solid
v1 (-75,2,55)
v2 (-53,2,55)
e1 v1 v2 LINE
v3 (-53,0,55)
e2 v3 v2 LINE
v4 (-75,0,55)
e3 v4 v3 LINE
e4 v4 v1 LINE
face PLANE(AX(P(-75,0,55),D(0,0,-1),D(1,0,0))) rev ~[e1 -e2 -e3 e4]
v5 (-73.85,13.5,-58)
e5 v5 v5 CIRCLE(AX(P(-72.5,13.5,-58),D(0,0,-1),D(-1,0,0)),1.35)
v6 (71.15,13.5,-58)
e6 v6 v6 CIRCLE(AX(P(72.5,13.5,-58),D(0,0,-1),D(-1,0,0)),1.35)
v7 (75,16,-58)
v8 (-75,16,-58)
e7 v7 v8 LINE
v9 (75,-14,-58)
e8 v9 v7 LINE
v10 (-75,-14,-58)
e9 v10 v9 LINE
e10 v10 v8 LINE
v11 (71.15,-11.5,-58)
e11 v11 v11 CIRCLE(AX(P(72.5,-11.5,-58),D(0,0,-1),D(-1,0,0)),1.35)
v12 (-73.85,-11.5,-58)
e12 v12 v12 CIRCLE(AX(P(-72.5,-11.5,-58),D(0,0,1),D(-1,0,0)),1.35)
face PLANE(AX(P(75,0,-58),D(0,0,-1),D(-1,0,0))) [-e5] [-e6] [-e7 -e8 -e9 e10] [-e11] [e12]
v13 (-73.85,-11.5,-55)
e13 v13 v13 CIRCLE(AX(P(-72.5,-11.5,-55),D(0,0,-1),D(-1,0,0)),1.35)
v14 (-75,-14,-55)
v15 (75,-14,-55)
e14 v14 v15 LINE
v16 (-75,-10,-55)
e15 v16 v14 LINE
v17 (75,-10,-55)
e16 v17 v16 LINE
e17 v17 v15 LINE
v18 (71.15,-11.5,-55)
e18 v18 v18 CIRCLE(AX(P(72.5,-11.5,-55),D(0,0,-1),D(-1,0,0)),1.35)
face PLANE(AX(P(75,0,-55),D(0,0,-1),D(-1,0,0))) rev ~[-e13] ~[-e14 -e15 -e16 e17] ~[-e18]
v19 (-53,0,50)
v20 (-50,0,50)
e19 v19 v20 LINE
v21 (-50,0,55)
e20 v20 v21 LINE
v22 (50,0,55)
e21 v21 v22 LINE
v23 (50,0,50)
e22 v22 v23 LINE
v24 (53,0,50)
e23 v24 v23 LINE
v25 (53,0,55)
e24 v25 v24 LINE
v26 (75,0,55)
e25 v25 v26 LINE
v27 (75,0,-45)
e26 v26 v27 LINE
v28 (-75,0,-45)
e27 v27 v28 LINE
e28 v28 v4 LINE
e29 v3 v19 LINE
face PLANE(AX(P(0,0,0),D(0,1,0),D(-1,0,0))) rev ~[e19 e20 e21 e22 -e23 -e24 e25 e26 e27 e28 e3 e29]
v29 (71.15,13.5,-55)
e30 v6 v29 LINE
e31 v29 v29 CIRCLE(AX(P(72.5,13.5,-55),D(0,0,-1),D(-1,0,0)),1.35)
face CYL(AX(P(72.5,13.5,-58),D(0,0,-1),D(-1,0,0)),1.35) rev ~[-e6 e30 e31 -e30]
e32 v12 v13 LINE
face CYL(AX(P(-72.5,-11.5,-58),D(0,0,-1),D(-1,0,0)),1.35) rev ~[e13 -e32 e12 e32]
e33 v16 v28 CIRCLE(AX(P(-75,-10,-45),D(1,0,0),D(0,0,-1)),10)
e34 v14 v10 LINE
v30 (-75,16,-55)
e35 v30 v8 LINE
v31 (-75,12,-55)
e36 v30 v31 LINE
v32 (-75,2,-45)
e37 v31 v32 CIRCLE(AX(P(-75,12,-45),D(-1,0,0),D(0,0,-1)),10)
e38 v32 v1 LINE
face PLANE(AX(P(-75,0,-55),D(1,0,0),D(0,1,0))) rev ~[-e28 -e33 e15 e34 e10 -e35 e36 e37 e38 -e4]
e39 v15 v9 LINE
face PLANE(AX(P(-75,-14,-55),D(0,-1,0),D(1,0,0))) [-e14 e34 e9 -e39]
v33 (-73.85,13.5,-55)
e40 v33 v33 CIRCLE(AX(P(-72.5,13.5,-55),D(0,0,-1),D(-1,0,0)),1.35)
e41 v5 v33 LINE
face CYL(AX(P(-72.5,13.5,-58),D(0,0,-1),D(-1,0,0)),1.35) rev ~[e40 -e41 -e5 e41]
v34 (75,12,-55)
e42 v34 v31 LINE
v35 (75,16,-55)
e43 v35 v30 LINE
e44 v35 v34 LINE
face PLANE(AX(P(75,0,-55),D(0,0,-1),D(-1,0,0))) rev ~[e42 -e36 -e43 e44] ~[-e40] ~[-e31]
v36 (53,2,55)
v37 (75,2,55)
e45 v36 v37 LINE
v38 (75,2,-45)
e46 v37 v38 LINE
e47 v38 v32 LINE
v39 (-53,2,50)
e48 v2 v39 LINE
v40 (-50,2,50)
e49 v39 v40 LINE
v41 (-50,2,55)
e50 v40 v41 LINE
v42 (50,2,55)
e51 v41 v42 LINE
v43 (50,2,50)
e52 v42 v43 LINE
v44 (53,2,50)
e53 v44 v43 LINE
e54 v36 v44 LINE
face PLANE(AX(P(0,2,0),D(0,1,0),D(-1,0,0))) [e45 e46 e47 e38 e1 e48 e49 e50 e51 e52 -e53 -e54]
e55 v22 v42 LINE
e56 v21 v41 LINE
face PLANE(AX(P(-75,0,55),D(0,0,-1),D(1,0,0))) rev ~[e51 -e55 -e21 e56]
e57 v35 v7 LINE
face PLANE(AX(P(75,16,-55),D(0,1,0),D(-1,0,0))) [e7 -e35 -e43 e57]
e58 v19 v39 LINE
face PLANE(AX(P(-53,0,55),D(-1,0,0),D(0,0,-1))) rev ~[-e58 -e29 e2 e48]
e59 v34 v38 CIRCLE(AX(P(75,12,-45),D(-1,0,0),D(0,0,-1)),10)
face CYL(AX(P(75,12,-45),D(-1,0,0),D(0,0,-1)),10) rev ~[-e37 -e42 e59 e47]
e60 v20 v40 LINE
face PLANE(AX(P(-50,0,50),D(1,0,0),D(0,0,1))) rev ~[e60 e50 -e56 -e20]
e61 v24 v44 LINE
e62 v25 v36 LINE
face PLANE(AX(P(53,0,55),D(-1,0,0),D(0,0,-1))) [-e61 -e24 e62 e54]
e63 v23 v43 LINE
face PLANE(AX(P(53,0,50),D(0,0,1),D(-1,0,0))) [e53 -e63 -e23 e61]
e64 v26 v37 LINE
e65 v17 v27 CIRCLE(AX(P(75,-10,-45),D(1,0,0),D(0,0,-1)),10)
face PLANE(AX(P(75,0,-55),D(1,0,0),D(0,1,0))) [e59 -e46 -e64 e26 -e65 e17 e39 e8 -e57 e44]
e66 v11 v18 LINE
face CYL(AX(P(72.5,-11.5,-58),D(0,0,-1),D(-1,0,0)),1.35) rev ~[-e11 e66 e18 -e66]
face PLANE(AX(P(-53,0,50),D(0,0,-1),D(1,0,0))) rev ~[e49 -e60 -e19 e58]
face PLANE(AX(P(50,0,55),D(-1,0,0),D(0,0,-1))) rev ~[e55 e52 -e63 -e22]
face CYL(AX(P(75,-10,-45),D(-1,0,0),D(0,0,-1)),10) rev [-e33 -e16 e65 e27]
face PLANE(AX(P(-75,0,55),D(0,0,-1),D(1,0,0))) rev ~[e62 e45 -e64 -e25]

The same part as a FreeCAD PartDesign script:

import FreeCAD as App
import Part
import Sketcher


def edges_at(feature, points):
    """Names of the edges that pass closest to the given points."""
    edges = feature.Shape.Edges
    near = lambda p: min(range(len(edges)), key=lambda i: edges[i].distToShape(Part.Vertex(*p))[0])
    return sorted({f"Edge{near(p) + 1}" for p in points})

doc = App.newDocument("Part")
body = doc.addObject("PartDesign::Body", "Body")

sketch1 = body.newObject("Sketcher::SketchObject", "Sketch")
sketch1.AttachmentSupport = (doc.getObject("XZ_Plane"), [""])
sketch1.MapMode = "FlatFace"
sketch1.addGeometry(Part.LineSegment(App.Vector(-75, -55, 0), App.Vector(-75, 55, 0)), False)
sketch1.addGeometry(Part.LineSegment(App.Vector(-75, 55, 0), App.Vector(75, 55, 0)), False)
sketch1.addGeometry(Part.LineSegment(App.Vector(75, 55, 0), App.Vector(75, -55, 0)), False)
sketch1.addGeometry(Part.LineSegment(App.Vector(75, -55, 0), App.Vector(-75, -55, 0)), False)
sketch1.addConstraint(Sketcher.Constraint("Coincident", 0, 2, 1, 1))
sketch1.addConstraint(Sketcher.Constraint("Coincident", 1, 2, 2, 1))
sketch1.addConstraint(Sketcher.Constraint("Coincident", 2, 2, 3, 1))
sketch1.addConstraint(Sketcher.Constraint("Coincident", 3, 2, 0, 1))
sketch1.addConstraint(Sketcher.Constraint("Vertical", 0))
sketch1.addConstraint(Sketcher.Constraint("Horizontal", 1))
sketch1.addConstraint(Sketcher.Constraint("Vertical", 2))
sketch1.addConstraint(Sketcher.Constraint("Horizontal", 3))
sketch1.addConstraint(Sketcher.Constraint("Symmetric", 0, 2, 2, 2, -1, 1))
sketch1.addConstraint(Sketcher.Constraint("DistanceX", 1, 1, 1, 2, 150.0))
sketch1.addConstraint(Sketcher.Constraint("DistanceY", 0, 1, 0, 2, 110.0))
pad1 = body.newObject("PartDesign::Pad", "Pad")
pad1.Profile = sketch1
pad1.Length = 2
pad1.Reversed = True

sketch2 = body.newObject("Sketcher::SketchObject", "Sketch001")
sketch2.AttachmentSupport = (doc.getObject("XY_Plane"), [""])
sketch2.MapMode = "FlatFace"
sketch2.AttachmentOffset = App.Placement(App.Vector(0, 0, -55), App.Rotation())
sketch2.addGeometry(Part.LineSegment(App.Vector(75, -14, 0), App.Vector(-75, -14, 0)), False)
sketch2.addGeometry(Part.LineSegment(App.Vector(-75, -14, 0), App.Vector(-75, 16, 0)), False)
sketch2.addGeometry(Part.LineSegment(App.Vector(-75, 16, 0), App.Vector(75, 16, 0)), False)
sketch2.addGeometry(Part.LineSegment(App.Vector(75, 16, 0), App.Vector(75, -14, 0)), False)
sketch2.addConstraint(Sketcher.Constraint("Coincident", 0, 2, 1, 1))
sketch2.addConstraint(Sketcher.Constraint("Coincident", 1, 2, 2, 1))
sketch2.addConstraint(Sketcher.Constraint("Coincident", 2, 2, 3, 1))
sketch2.addConstraint(Sketcher.Constraint("Coincident", 3, 2, 0, 1))
sketch2.addConstraint(Sketcher.Constraint("Horizontal", 0))
sketch2.addConstraint(Sketcher.Constraint("Vertical", 1))
sketch2.addConstraint(Sketcher.Constraint("Horizontal", 2))
sketch2.addConstraint(Sketcher.Constraint("Vertical", 3))
sketch2.addConstraint(Sketcher.Constraint("DistanceX", 0, 2, 0, 1, 150.0))
sketch2.addConstraint(Sketcher.Constraint("DistanceY", 1, 1, 1, 2, 30.0))
sketch2.addConstraint(Sketcher.Constraint("DistanceX", 0, 2, -1, 1, 75.0))
sketch2.addConstraint(Sketcher.Constraint("DistanceY", 0, 2, -1, 1, 14.0))
pad2 = body.newObject("PartDesign::Pad", "Pad001")
pad2.Profile = sketch2
pad2.Length = 3
pad2.Reversed = True
doc.recompute()

fillet = body.newObject("PartDesign::Fillet", "Fillet")
fillet.Base = (pad2, edges_at(pad2, [(0, 0, -55), (0, 2, -55)]))
fillet.Radius = 10

sketch3 = body.newObject("Sketcher::SketchObject", "Sketch002")
sketch3.AttachmentSupport = (doc.getObject("XZ_Plane"), [""])
sketch3.MapMode = "FlatFace"
sketch3.addGeometry(Part.LineSegment(App.Vector(-50, 50, 0), App.Vector(-50, 55, 0)), False)
sketch3.addGeometry(Part.LineSegment(App.Vector(-50, 55, 0), App.Vector(-53, 55, 0)), False)
sketch3.addGeometry(Part.LineSegment(App.Vector(-53, 55, 0), App.Vector(-53, 50, 0)), False)
sketch3.addGeometry(Part.LineSegment(App.Vector(-53, 50, 0), App.Vector(-50, 50, 0)), False)
sketch3.addGeometry(Part.LineSegment(App.Vector(53, 55, 0), App.Vector(50, 55, 0)), False)
sketch3.addGeometry(Part.LineSegment(App.Vector(50, 55, 0), App.Vector(50, 50, 0)), False)
sketch3.addGeometry(Part.LineSegment(App.Vector(50, 50, 0), App.Vector(53, 50, 0)), False)
sketch3.addGeometry(Part.LineSegment(App.Vector(53, 50, 0), App.Vector(53, 55, 0)), False)
sketch3.addConstraint(Sketcher.Constraint("Coincident", 0, 2, 1, 1))
sketch3.addConstraint(Sketcher.Constraint("Coincident", 1, 2, 2, 1))
sketch3.addConstraint(Sketcher.Constraint("Coincident", 2, 2, 3, 1))
sketch3.addConstraint(Sketcher.Constraint("Coincident", 3, 2, 0, 1))
sketch3.addConstraint(Sketcher.Constraint("Coincident", 4, 2, 5, 1))
sketch3.addConstraint(Sketcher.Constraint("Coincident", 5, 2, 6, 1))
sketch3.addConstraint(Sketcher.Constraint("Coincident", 6, 2, 7, 1))
sketch3.addConstraint(Sketcher.Constraint("Coincident", 7, 2, 4, 1))
sketch3.addConstraint(Sketcher.Constraint("Vertical", 0))
sketch3.addConstraint(Sketcher.Constraint("Horizontal", 1))
sketch3.addConstraint(Sketcher.Constraint("Vertical", 2))
sketch3.addConstraint(Sketcher.Constraint("Horizontal", 3))
sketch3.addConstraint(Sketcher.Constraint("Horizontal", 4))
sketch3.addConstraint(Sketcher.Constraint("Vertical", 5))
sketch3.addConstraint(Sketcher.Constraint("Horizontal", 6))
sketch3.addConstraint(Sketcher.Constraint("Vertical", 7))
sketch3.addConstraint(Sketcher.Constraint("Symmetric", 0, 2, 4, 2, -2))
sketch3.addConstraint(Sketcher.Constraint("Symmetric", 2, 2, 6, 2, -2))
sketch3.addConstraint(Sketcher.Constraint("DistanceX", 1, 2, 1, 1, 3.0))
sketch3.addConstraint(Sketcher.Constraint("DistanceY", 0, 1, 0, 2, 5.0))
sketch3.addConstraint(Sketcher.Constraint("DistanceX", 0, 2, 4, 2, 100.0))
sketch3.addConstraint(Sketcher.Constraint("DistanceY", -1, 1, 0, 2, 55.0))
pocket1 = body.newObject("PartDesign::Pocket", "Pocket")
pocket1.Profile = sketch3
pocket1.Length = 2

sketch4 = body.newObject("Sketcher::SketchObject", "Sketch003")
sketch4.AttachmentSupport = (doc.getObject("XY_Plane"), [""])
sketch4.MapMode = "FlatFace"
sketch4.AttachmentOffset = App.Placement(App.Vector(0, 0, -58), App.Rotation())
sketch4.addGeometry(Part.Circle(App.Vector(-72.5, -11.5, 0), App.Vector(0, 0, 1), 1.4), False)
sketch4.addGeometry(Part.Circle(App.Vector(-72.5, 13.5, 0), App.Vector(0, 0, 1), 1.4), False)
sketch4.addGeometry(Part.Circle(App.Vector(72.5, -11.5, 0), App.Vector(0, 0, 1), 1.4), False)
sketch4.addGeometry(Part.Circle(App.Vector(72.5, 13.5, 0), App.Vector(0, 0, 1), 1.4), False)
sketch4.addConstraint(Sketcher.Constraint("Equal", 0, 1))
sketch4.addConstraint(Sketcher.Constraint("Equal", 1, 2))
sketch4.addConstraint(Sketcher.Constraint("Equal", 2, 3))
sketch4.addConstraint(Sketcher.Constraint("Symmetric", 0, 3, 2, 3, -2))
sketch4.addConstraint(Sketcher.Constraint("Symmetric", 1, 3, 3, 3, -2))
sketch4.addConstraint(Sketcher.Constraint("Vertical", 0, 3, 1, 3))
sketch4.addConstraint(Sketcher.Constraint("Diameter", 0, 2.7))
sketch4.addConstraint(Sketcher.Constraint("DistanceY", 0, 3, 1, 3, 25.0))
sketch4.addConstraint(Sketcher.Constraint("DistanceX", 0, 3, 2, 3, 145.0))
sketch4.addConstraint(Sketcher.Constraint("DistanceY", 0, 3, -1, 1, 11.5))
pocket2 = body.newObject("PartDesign::Pocket", "Pocket001")
pocket2.Profile = sketch4
pocket2.Length = 3
pocket2.Reversed = True

doc.recompute()
